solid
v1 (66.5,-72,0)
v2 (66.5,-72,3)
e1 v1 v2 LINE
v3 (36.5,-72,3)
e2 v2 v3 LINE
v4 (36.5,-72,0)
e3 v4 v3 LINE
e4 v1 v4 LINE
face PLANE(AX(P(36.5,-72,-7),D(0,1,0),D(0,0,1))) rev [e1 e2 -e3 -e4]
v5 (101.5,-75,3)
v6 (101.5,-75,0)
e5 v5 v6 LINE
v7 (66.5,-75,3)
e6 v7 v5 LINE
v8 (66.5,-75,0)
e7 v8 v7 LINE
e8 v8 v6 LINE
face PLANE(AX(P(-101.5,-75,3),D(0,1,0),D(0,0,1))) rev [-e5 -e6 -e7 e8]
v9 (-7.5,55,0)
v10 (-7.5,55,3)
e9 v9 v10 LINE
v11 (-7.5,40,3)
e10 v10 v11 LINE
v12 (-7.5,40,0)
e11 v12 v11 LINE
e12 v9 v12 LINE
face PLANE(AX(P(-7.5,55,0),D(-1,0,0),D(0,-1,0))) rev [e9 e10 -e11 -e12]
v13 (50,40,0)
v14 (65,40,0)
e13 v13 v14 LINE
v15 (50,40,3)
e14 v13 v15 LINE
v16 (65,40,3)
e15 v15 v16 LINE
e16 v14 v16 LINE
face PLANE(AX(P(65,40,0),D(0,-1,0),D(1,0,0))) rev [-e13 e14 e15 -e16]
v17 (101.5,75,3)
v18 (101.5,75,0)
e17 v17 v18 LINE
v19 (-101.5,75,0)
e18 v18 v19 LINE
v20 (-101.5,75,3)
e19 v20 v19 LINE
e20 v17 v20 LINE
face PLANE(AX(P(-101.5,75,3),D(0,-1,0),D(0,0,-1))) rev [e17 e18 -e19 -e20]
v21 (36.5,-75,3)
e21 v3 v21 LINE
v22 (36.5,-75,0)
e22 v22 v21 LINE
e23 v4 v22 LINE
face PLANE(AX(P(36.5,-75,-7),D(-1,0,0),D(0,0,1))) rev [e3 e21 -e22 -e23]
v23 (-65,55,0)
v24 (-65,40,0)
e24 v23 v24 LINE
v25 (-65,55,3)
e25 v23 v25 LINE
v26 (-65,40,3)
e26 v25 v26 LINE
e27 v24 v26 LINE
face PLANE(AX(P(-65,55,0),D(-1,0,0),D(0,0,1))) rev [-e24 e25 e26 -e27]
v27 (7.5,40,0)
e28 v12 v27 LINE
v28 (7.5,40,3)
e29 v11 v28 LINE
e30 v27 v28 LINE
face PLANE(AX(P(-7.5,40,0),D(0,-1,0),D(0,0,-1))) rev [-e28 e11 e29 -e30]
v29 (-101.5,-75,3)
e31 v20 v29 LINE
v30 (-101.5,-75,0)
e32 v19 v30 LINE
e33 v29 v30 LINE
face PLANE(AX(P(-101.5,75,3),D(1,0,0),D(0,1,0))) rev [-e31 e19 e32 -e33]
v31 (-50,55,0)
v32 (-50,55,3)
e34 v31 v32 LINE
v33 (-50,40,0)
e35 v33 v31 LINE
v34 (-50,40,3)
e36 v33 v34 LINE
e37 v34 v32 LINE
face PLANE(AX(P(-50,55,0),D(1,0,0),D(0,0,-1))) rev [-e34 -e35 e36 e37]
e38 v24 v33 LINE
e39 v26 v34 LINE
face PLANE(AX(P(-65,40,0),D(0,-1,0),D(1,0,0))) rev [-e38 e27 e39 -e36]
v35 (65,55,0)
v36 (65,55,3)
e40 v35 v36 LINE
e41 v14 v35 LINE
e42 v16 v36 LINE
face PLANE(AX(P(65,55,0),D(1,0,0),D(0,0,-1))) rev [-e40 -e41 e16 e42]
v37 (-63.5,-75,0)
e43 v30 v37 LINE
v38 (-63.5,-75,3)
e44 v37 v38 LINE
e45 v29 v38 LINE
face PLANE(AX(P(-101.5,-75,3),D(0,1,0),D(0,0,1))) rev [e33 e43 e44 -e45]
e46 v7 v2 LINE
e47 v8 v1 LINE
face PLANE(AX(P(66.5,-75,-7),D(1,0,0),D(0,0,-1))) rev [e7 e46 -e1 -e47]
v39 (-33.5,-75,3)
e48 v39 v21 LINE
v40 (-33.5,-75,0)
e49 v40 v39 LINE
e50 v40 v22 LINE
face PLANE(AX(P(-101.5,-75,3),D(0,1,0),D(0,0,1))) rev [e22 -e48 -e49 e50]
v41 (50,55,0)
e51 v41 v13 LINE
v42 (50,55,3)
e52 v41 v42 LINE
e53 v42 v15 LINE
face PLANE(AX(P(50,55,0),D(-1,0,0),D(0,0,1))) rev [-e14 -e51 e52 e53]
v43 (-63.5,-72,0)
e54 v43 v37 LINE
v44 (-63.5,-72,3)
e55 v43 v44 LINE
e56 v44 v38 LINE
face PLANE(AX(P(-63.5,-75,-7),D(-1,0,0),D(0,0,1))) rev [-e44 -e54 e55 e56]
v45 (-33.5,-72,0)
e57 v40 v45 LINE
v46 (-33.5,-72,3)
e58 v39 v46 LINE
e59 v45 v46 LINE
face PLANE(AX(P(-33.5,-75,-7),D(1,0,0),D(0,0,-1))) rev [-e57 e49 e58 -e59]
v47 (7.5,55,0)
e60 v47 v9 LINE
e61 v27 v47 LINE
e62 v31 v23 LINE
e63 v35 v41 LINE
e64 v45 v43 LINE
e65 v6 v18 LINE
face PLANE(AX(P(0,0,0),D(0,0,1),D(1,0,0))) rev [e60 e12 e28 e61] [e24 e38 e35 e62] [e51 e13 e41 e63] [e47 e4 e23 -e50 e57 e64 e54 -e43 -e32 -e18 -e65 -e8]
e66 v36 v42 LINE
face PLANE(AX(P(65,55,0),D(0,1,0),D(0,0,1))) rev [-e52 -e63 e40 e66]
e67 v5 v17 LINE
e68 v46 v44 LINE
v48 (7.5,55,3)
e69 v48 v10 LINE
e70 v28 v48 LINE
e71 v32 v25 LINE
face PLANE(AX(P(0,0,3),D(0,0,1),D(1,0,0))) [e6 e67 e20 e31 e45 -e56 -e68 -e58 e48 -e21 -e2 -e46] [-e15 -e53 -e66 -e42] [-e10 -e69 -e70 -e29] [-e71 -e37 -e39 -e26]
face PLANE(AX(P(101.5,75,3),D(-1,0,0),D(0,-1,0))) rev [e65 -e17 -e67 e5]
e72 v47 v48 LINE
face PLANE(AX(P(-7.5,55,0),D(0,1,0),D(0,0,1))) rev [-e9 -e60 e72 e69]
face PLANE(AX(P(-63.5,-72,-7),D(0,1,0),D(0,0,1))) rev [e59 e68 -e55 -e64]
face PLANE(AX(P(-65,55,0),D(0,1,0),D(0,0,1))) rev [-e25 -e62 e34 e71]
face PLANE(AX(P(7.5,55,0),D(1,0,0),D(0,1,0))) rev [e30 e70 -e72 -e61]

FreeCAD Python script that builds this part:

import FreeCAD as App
import Part
import Sketcher
from FreeCAD import Vector


def add_polygon(sketch, points):
    """Adds a closed chain of lines whose ends are joined by coincident constraints."""
    first, n = sketch.GeometryCount, len(points)
    for a, b in zip(points, points[1:] + points[:1]):
        sketch.addGeometry(Part.LineSegment(App.Vector(*a, 0), App.Vector(*b, 0)), False)
    for i in range(n):
        sketch.addConstraint(Sketcher.Constraint("Coincident", first + i, 2, first + (i + 1) % n, 1))

doc = App.newDocument("Part")
body = doc.addObject("PartDesign::Body", "Body")

# Sketch on XY plane
sketch1 = body.newObject("Sketcher::SketchObject", "Sketch")
sketch1.AttachmentSupport = (doc.getObject("XY_Plane"), [""])
sketch1.MapMode = "FlatFace"
add_polygon(sketch1, [(-102, 75), (-102, -75), (102, -75), (102, 75)])  # lines 0-3
sketch1.addConstraint(Sketcher.Constraint("Vertical", 0))
sketch1.addConstraint(Sketcher.Constraint("Horizontal", 1))
sketch1.addConstraint(Sketcher.Constraint("Vertical", 2))
sketch1.addConstraint(Sketcher.Constraint("Horizontal", 3))
sketch1.addConstraint(Sketcher.Constraint("Symmetric", 0, 2, 2, 2, -1, 1))
sketch1.addConstraint(Sketcher.Constraint("DistanceX", 1, 1, 1, 2, 203.0))
sketch1.addConstraint(Sketcher.Constraint("DistanceY", 0, 2, 0, 1, 150.0))
pad1 = body.newObject("PartDesign::Pad", "Pad")
pad1.Profile = sketch1
pad1.Length = 3

# Sketch on XY plane
sketch2 = body.newObject("Sketcher::SketchObject", "Sketch001")
sketch2.AttachmentSupport = (doc.getObject("XY_Plane"), [""])
sketch2.MapMode = "FlatFace"
sketch2.AttachmentOffset = App.Placement(Vector(0, 0, 3), App.Rotation())
add_polygon(sketch2, [(-65, 55), (-65, 40), (-50, 40), (-50, 55)])  # lines 0-3
add_polygon(sketch2, [(50, 55), (50, 40), (65, 40), (65, 55)])  # lines 4-7
add_polygon(sketch2, [(-8, 55), (-8, 40), (8, 40), (8, 55)])  # lines 8-11
sketch2.addConstraint(Sketcher.Constraint("Vertical", 0))
sketch2.addConstraint(Sketcher.Constraint("Horizontal", 1))
sketch2.addConstraint(Sketcher.Constraint("Vertical", 2))
sketch2.addConstraint(Sketcher.Constraint("Horizontal", 3))
sketch2.addConstraint(Sketcher.Constraint("Vertical", 4))
sketch2.addConstraint(Sketcher.Constraint("Horizontal", 5))
sketch2.addConstraint(Sketcher.Constraint("Vertical", 6))
sketch2.addConstraint(Sketcher.Constraint("Horizontal", 7))
sketch2.addConstraint(Sketcher.Constraint("Vertical", 8))
sketch2.addConstraint(Sketcher.Constraint("Horizontal", 9))
sketch2.addConstraint(Sketcher.Constraint("Vertical", 10))
sketch2.addConstraint(Sketcher.Constraint("Horizontal", 11))
sketch2.addConstraint(Sketcher.Constraint("Symmetric", 1, 2, 4, 2, -2))
sketch2.addConstraint(Sketcher.Constraint("Symmetric", 3, 2, 6, 2, -2))
sketch2.addConstraint(Sketcher.Constraint("Horizontal", 5, 2, 8, 2))
sketch2.addConstraint(Sketcher.Constraint("Horizontal", 7, 2, 10, 2))
sketch2.addConstraint(Sketcher.Constraint("Equal", 7, 9))
sketch2.addConstraint(Sketcher.Constraint("Equal", 11, 0))
sketch2.addConstraint(Sketcher.Constraint("DistanceX", 1, 1, 1, 2, 15.0))
sketch2.addConstraint(Sketcher.Constraint("DistanceX", 0, 2, -1, 1, 65.0))
sketch2.addConstraint(Sketcher.Constraint("DistanceY", -1, 1, 0, 2, 40.0))
sketch2.addConstraint(Sketcher.Constraint("DistanceX", 8, 2, -1, 1, 7.5))
pocket1 = body.newObject("PartDesign::Pocket", "Pocket")
pocket1.Profile = sketch2
pocket1.Type = "ThroughAll"

# Sketch on XY plane
sketch3 = body.newObject("Sketcher::SketchObject", "Sketch002")
sketch3.AttachmentSupport = (doc.getObject("XY_Plane"), [""])
sketch3.MapMode = "FlatFace"
sketch3.AttachmentOffset = App.Placement(Vector(0, 0, 3), App.Rotation())
add_polygon(sketch3, [(-63.5, -72), (-63.5, -75), (-33.5, -75), (-33.5, -72)])  # lines 0-3
add_polygon(sketch3, [(36.5, -72), (36.5, -75), (66.5, -75), (66.5, -72)])  # lines 4-7
sketch3.addConstraint(Sketcher.Constraint("Vertical", 0))
sketch3.addConstraint(Sketcher.Constraint("Horizontal", 1))
sketch3.addConstraint(Sketcher.Constraint("Vertical", 2))
sketch3.addConstraint(Sketcher.Constraint("Horizontal", 3))
sketch3.addConstraint(Sketcher.Constraint("Vertical", 4))
sketch3.addConstraint(Sketcher.Constraint("Horizontal", 5))
sketch3.addConstraint(Sketcher.Constraint("Vertical", 6))
sketch3.addConstraint(Sketcher.Constraint("Horizontal", 7))
sketch3.addConstraint(Sketcher.Constraint("Horizontal", 1, 2, 4, 2))
sketch3.addConstraint(Sketcher.Constraint("Horizontal", 3, 2, 6, 2))
sketch3.addConstraint(Sketcher.Constraint("Equal", 3, 5))
sketch3.addConstraint(Sketcher.Constraint("DistanceX", 1, 1, 1, 2, 30.0))
sketch3.addConstraint(Sketcher.Constraint("DistanceY", 0, 2, 0, 1, 3.0))
sketch3.addConstraint(Sketcher.Constraint("DistanceY", 0, 2, -1, 1, 75.0))
sketch3.addConstraint(Sketcher.Constraint("DistanceX", 1, 2, 4, 2, 70.0))
sketch3.addConstraint(Sketcher.Constraint("DistanceX", 0, 2, -1, 1, 63.5))
pocket2 = body.newObject("PartDesign::Pocket", "Pocket001")
pocket2.Profile = sketch3
pocket2.Length = 10

doc.recompute()
